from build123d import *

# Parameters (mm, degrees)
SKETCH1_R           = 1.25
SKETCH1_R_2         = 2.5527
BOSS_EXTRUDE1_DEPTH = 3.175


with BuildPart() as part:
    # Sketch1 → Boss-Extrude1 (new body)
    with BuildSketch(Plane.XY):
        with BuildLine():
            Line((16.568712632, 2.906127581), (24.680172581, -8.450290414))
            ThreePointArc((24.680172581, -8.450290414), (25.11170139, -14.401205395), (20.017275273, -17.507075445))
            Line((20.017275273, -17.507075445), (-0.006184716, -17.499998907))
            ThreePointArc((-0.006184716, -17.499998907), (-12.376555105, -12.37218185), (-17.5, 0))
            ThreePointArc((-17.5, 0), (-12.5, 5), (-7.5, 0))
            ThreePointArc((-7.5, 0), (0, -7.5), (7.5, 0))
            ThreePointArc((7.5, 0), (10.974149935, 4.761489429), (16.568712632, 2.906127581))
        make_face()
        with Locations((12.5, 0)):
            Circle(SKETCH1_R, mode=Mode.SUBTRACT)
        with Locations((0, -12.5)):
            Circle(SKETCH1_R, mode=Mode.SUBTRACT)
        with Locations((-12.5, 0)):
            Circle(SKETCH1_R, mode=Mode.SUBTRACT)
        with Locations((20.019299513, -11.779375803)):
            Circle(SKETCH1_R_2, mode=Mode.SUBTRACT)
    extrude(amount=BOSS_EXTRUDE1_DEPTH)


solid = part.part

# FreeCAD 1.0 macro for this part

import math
import FreeCAD as App
import Part
import Sketcher

V = App.Vector

doc = App.newDocument("Part")
body = doc.addObject("PartDesign::Body", "Body")

# Sketch on XY plane
sketch1 = doc.addObject("Sketcher::SketchObject", "Sketch")
body.addObject(sketch1)
sketch1.AttachmentSupport = (doc.XY_Plane, [""])
sketch1.MapMode = "FlatFace"
sketch1.addGeometry([
    Part.LineSegment(V(24.7, -8.5, 0), V(16.6, 2.9, 0)),  # 0
    Part.ArcOfCircle(Part.Circle(V(12.5, 0, 0), V(0, 0, 1), 5), math.radians(36), math.radians(180)),  # 1
    Part.ArcOfCircle(Part.Circle(V(0, 0, 0), V(0, 0, 1), 7.5), math.radians(180), math.radians(360)),  # 2
    Part.ArcOfCircle(Part.Circle(V(-12.5, 0, 0), V(0, 0, 1), 5), math.radians(0), math.radians(180)),  # 3
    Part.ArcOfCircle(Part.Circle(V(0, 0, 0), V(0, 0, 1), 17.5), math.radians(180), math.radians(270)),  # 4
    Part.LineSegment(V(0, -17.5, 0), V(20, -17.5, 0)),  # 5
    Part.ArcOfCircle(Part.Circle(V(20, -11.8, 0), V(0, 0, 1), 5.7), math.radians(-90), math.radians(36)),  # 6
    Part.Circle(V(20, -11.8, 0), V(0, 0, 1), 2.6),  # 7
    Part.Circle(V(0, -12.5, 0), V(0, 0, 1), 1.2),  # 8
    Part.Circle(V(12.5, 0, 0), V(0, 0, 1), 1.2),  # 9
    Part.Circle(V(-12.5, 0, 0), V(0, 0, 1), 1.2),  # 10
], False)
sketch1.addConstraint([
    Sketcher.Constraint("Tangent", 0, 2, 1, 1),
    Sketcher.Constraint("Tangent", 1, 2, 2, 2),
    Sketcher.Constraint("Tangent", 2, 1, 3, 1),
    Sketcher.Constraint("Tangent", 3, 2, 4, 1),
    Sketcher.Constraint("Tangent", 4, 2, 5, 1),
    Sketcher.Constraint("Tangent", 5, 2, 6, 1),
    Sketcher.Constraint("Tangent", 6, 2, 0, 1),
    Sketcher.Constraint("Coincident", 2, 3, -1, 1),
    Sketcher.Constraint("Coincident", 4, 3, -1, 1),
    Sketcher.Constraint("Coincident", 7, 3, 6, 3),
    Sketcher.Constraint("Coincident", 9, 3, 1, 3),
    Sketcher.Constraint("Coincident", 10, 3, 3, 3),
    Sketcher.Constraint("Equal", 1, 3),
    Sketcher.Constraint("Equal", 8, 9),
    Sketcher.Constraint("Equal", 9, 10),
    Sketcher.Constraint("PointOnObject", 1, 3, -1),
    Sketcher.Constraint("PointOnObject", 3, 3, -1),
    Sketcher.Constraint("PointOnObject", 8, 3, -2),
    Sketcher.Constraint("Radius", 1, 5.0),
    Sketcher.Constraint("Diameter", 8, 2.5),
    Sketcher.Constraint("Radius", 2, 7.5),
    Sketcher.Constraint("DistanceY", 4, 2, 8, 3, 4.999999),
    Sketcher.Constraint("Diameter", 7, 5.1054),
    Sketcher.Constraint("Radius", 6, 5.7277),
    Sketcher.Constraint("DistanceX", -1, 1, 6, 3, 20.0193),
    Sketcher.Constraint("Distance", 5, 20.023461),
])
pad1 = doc.addObject("PartDesign::Pad", "Pad")
body.addObject(pad1)
pad1.Profile = sketch1
pad1.Length = 3.175

doc.recompute()
